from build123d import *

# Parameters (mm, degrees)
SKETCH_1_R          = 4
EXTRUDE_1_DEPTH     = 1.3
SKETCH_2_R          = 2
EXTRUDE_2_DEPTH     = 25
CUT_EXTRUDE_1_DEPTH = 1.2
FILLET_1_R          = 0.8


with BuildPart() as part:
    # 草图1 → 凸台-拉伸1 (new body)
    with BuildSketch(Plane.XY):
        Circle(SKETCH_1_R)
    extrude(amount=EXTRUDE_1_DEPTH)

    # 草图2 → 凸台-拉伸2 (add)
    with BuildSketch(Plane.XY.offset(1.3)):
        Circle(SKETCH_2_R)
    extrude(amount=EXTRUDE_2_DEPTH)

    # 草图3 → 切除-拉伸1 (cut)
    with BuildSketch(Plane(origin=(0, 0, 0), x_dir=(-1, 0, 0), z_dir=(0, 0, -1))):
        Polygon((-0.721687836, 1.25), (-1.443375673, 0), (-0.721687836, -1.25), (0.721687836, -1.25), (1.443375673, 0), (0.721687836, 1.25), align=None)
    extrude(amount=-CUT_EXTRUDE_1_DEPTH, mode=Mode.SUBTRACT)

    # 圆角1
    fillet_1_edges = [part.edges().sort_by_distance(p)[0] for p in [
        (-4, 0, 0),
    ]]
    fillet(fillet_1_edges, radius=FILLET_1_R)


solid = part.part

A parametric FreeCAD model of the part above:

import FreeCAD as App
import Part
import Sketcher
from FreeCAD import Vector
Q = App.Units.Quantity


def edges_at(feature, points):
    """Names of the edges that pass closest to the given points."""
    edges = feature.Shape.Edges
    near = lambda p: min(range(len(edges)), key=lambda i: edges[i].distToShape(Part.Vertex(*p))[0])
    return sorted({f"Edge{near(p) + 1}" for p in points})

doc = App.newDocument("Part")
params = doc.addObject("Spreadsheet::Sheet", "Params")
for row, (alias, value) in enumerate([
    ("sketch1_diameter", "8 mm"),
    ("pad1_length", "1.3 mm"),
    ("sketch2_diameter", "4 mm"),
    ("pad2_length", "25 mm"),
    ("pocket1_length", "1.2 mm"),
    ("fillet_radius", "0.8 mm"),
], start=1):
    params.set(f"A{row}", alias)
    params.set(f"B{row}", "=" + value)
    params.setAlias(f"B{row}", alias)

body = doc.addObject("PartDesign::Body", "Body")

sketch1 = body.newObject("Sketcher::SketchObject", "Sketch")
sketch1.AttachmentSupport = (doc.getObject("XY_Plane"), [""])
sketch1.MapMode = "FlatFace"
sketch1.addGeometry(Part.Circle(Vector(0, 0, 0), Vector(0, 0, 1), 4), False)
sketch1.addConstraint(Sketcher.Constraint("Coincident", 0, 3, -1, 1))
sketch1.addConstraint(Sketcher.Constraint("Diameter", 0, Q("8 mm")))
sketch1.setExpression("Constraints[1]", "Params.sketch1_diameter")
pad1 = body.newObject("PartDesign::Pad", "Pad")
pad1.Profile = sketch1
pad1.setExpression("Length", "Params.pad1_length")

sketch2 = body.newObject("Sketcher::SketchObject", "Sketch001")
sketch2.AttachmentSupport = (doc.getObject("XY_Plane"), [""])
sketch2.MapMode = "FlatFace"
sketch2.AttachmentOffset = App.Placement(Vector(0, 0, 1.3), App.Rotation())
sketch2.addGeometry(Part.Circle(Vector(0, 0, 0), Vector(0, 0, 1), 2), False)
sketch2.addConstraint(Sketcher.Constraint("Coincident", 0, 3, -1, 1))
sketch2.addConstraint(Sketcher.Constraint("Diameter", 0, Q("4 mm")))
sketch2.setExpression("Constraints[1]", "Params.sketch2_diameter")
pad2 = body.newObject("PartDesign::Pad", "Pad001")
pad2.Profile = sketch2
pad2.setExpression("Length", "Params.pad2_length")

sketch3 = body.newObject("Sketcher::SketchObject", "Sketch002")
sketch3.AttachmentSupport = (doc.getObject("XY_Plane"), [""])
sketch3.MapMode = "FlatFace"
sketch3.addGeometry(Part.LineSegment(Vector(0.7, 1.2, 0), Vector(1.4, 0, 0)), False)
sketch3.addGeometry(Part.LineSegment(Vector(1.4, 0, 0), Vector(0.7, -1.2, 0)), False)
sketch3.addGeometry(Part.LineSegment(Vector(0.7, -1.2, 0), Vector(-0.7, -1.2, 0)), False)
sketch3.addGeometry(Part.LineSegment(Vector(-0.7, -1.2, 0), Vector(-1.4, 0, 0)), False)
sketch3.addGeometry(Part.LineSegment(Vector(-1.4, 0, 0), Vector(-0.7, 1.2, 0)), False)
sketch3.addGeometry(Part.LineSegment(Vector(-0.7, 1.2, 0), Vector(0.7, 1.2, 0)), False)
sketch3.addConstraint(Sketcher.Constraint("Coincident", 0, 2, 1, 1))
sketch3.addConstraint(Sketcher.Constraint("Coincident", 1, 2, 2, 1))
sketch3.addConstraint(Sketcher.Constraint("Coincident", 2, 2, 3, 1))
sketch3.addConstraint(Sketcher.Constraint("Coincident", 3, 2, 4, 1))
sketch3.addConstraint(Sketcher.Constraint("Coincident", 4, 2, 5, 1))
sketch3.addConstraint(Sketcher.Constraint("Coincident", 5, 2, 0, 1))
sketch3.addConstraint(Sketcher.Constraint("Horizontal", 2))
sketch3.addConstraint(Sketcher.Constraint("Horizontal", 5))
sketch3.addConstraint(Sketcher.Constraint("Symmetric", 0, 2, 3, 2, -1, 1))
sketch3.addConstraint(Sketcher.Constraint("Symmetric", 1, 2, 4, 2, -1, 1))
sketch3.addConstraint(Sketcher.Constraint("PointOnObject", 0, 2, -1))
sketch3.addConstraint(Sketcher.Constraint("Parallel", 0, 3))
sketch3.addConstraint(Sketcher.Constraint("Vertical", 2, 2, 4, 2))
sketch3.addConstraint(Sketcher.Constraint("Angle", 0, Q("-60 deg")))
sketch3.addConstraint(Sketcher.Constraint("DistanceY", 2, 2, 4, 2, Q("2.5 mm")))
sketch3.addConstraint(Sketcher.Constraint("DistanceX", 2, 2, 2, 1, Q("1.443376 mm")))
pocket1 = body.newObject("PartDesign::Pocket", "Pocket")
pocket1.Profile = sketch3
pocket1.setExpression("Length", "Params.pocket1_length")
pocket1.Reversed = True
doc.recompute()

fillet = body.newObject("PartDesign::Fillet", "Fillet")
fillet.Base = (pocket1, edges_at(pocket1, [(-4, 0, 0)]))
fillet.setExpression("Radius", "Params.fillet_radius")

doc.recompute()
